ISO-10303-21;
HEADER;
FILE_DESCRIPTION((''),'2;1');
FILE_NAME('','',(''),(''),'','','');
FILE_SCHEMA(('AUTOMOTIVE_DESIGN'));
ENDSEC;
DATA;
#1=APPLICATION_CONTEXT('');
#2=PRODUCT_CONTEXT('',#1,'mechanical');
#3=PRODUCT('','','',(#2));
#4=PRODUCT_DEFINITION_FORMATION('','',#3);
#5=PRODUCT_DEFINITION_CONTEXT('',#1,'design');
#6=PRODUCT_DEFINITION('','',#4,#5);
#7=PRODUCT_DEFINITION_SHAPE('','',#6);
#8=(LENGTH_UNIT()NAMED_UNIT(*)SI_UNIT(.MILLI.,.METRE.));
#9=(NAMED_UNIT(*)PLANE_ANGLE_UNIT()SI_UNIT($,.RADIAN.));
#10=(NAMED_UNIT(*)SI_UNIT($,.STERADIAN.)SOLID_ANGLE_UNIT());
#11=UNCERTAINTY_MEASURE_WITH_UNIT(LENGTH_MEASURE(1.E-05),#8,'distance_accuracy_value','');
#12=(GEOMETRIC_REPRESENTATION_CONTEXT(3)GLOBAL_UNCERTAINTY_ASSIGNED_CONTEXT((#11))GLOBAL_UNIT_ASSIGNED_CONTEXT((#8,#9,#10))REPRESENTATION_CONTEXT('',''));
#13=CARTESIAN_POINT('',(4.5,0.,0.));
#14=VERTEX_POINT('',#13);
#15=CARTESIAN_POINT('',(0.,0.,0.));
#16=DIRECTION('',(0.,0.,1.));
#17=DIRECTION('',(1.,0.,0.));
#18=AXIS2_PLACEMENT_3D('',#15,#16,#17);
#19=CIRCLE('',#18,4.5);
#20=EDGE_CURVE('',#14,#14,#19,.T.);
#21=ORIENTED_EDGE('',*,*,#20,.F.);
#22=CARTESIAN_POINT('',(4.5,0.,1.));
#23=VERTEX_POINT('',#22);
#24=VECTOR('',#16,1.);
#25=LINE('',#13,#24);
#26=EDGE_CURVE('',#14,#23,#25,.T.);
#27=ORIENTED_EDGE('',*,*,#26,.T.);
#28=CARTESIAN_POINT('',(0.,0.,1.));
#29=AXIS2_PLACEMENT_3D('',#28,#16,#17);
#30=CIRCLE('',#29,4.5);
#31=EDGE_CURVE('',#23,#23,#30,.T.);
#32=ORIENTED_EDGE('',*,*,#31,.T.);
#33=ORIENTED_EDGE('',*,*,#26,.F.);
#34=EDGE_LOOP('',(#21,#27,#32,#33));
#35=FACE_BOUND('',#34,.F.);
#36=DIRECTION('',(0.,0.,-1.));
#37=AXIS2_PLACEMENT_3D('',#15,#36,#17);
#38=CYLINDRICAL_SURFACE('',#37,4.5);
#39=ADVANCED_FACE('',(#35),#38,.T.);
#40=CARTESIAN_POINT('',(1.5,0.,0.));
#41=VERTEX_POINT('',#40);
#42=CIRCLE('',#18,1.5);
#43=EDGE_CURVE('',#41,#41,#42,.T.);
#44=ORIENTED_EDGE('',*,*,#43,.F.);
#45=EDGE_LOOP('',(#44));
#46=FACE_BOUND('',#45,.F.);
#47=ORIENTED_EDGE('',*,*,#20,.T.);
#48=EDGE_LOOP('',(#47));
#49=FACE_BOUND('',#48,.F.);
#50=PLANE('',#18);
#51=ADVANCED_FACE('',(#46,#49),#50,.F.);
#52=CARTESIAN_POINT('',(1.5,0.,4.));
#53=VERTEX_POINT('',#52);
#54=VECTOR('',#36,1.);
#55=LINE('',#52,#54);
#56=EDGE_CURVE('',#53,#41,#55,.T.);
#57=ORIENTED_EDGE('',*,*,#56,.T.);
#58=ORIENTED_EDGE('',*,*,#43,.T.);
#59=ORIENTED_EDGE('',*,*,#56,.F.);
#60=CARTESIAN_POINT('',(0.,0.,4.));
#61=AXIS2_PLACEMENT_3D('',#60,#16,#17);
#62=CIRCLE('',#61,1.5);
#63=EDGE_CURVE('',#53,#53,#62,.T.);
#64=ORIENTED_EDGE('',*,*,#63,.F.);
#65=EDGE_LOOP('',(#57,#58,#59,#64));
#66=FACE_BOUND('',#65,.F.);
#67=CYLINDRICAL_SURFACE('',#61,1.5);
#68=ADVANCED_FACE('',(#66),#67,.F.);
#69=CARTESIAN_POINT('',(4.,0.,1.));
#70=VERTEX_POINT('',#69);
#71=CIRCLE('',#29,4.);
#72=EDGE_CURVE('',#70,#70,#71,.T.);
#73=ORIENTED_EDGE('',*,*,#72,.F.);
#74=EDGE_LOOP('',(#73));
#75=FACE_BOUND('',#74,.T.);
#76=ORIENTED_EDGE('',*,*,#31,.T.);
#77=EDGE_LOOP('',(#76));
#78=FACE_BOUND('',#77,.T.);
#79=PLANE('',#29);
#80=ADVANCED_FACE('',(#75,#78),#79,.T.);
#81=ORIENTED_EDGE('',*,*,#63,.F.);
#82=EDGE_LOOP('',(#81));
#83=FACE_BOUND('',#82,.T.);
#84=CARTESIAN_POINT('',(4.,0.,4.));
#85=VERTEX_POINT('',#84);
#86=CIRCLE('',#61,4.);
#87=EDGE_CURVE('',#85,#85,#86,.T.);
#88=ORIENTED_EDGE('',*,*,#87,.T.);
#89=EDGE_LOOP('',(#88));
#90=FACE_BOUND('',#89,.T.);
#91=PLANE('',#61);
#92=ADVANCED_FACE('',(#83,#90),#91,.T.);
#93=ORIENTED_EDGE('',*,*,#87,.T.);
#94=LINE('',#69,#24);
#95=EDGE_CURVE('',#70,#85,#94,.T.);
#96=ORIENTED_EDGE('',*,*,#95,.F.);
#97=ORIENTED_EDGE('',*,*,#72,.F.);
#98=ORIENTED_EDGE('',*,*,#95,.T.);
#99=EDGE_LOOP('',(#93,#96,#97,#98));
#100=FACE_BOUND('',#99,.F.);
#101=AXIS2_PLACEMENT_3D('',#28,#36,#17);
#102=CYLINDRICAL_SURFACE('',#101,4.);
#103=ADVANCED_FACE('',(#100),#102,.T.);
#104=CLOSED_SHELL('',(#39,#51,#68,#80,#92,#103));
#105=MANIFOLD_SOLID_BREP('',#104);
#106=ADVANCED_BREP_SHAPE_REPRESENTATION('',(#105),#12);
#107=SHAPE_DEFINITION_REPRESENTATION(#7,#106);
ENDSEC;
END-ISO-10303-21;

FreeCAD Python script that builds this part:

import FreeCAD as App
import Part
import Sketcher
Q = App.Units.Quantity

doc = App.newDocument("Part")
body = doc.addObject("PartDesign::Body", "Body")

sketch1 = body.newObject("Sketcher::SketchObject", "Sketch")
sketch1.AttachmentSupport = (doc.getObject("XY_Plane"), [""])
sketch1.MapMode = "FlatFace"
sketch1.addGeometry(Part.Circle(App.Vector(0, 0, 0), App.Vector(0, 0, 1), 4.5), False)
sketch1.addConstraint([
    Sketcher.Constraint("Coincident", 0, 3, -1, 1),
    Sketcher.Constraint("Diameter", 0, Q("9 mm")),
])
pad1 = body.newObject("PartDesign::Pad", "Pad")
pad1.Profile = sketch1
pad1.Length = 1

sketch2 = body.newObject("Sketcher::SketchObject", "Sketch001")
sketch2.AttachmentSupport = (doc.getObject("XY_Plane"), [""])
sketch2.MapMode = "FlatFace"
sketch2.AttachmentOffset = App.Placement(App.Vector(0, 0, 1), App.Rotation())
sketch2.addGeometry(Part.Circle(App.Vector(0, 0, 0), App.Vector(0, 0, 1), 4), False)
sketch2.addConstraint([
    Sketcher.Constraint("Coincident", 0, 3, -1, 1),
    Sketcher.Constraint("Diameter", 0, Q("8 mm")),
])
pad2 = body.newObject("PartDesign::Pad", "Pad001")
pad2.Profile = sketch2
pad2.Length = 3

sketch3 = body.newObject("Sketcher::SketchObject", "Sketch002")
sketch3.AttachmentSupport = (doc.getObject("XY_Plane"), [""])
sketch3.MapMode = "FlatFace"
sketch3.AttachmentOffset = App.Placement(App.Vector(0, 0, 4), App.Rotation())
sketch3.addGeometry(Part.Circle(App.Vector(0, 0, 0), App.Vector(0, 0, 1), 1.5), False)
sketch3.addConstraint([
    Sketcher.Constraint("Coincident", 0, 3, -1, 1),
    Sketcher.Constraint("Diameter", 0, Q("3 mm")),
])
pocket1 = body.newObject("PartDesign::Pocket", "Pocket")
pocket1.Profile = sketch3
pocket1.Type = "ThroughAll"

doc.recompute()
